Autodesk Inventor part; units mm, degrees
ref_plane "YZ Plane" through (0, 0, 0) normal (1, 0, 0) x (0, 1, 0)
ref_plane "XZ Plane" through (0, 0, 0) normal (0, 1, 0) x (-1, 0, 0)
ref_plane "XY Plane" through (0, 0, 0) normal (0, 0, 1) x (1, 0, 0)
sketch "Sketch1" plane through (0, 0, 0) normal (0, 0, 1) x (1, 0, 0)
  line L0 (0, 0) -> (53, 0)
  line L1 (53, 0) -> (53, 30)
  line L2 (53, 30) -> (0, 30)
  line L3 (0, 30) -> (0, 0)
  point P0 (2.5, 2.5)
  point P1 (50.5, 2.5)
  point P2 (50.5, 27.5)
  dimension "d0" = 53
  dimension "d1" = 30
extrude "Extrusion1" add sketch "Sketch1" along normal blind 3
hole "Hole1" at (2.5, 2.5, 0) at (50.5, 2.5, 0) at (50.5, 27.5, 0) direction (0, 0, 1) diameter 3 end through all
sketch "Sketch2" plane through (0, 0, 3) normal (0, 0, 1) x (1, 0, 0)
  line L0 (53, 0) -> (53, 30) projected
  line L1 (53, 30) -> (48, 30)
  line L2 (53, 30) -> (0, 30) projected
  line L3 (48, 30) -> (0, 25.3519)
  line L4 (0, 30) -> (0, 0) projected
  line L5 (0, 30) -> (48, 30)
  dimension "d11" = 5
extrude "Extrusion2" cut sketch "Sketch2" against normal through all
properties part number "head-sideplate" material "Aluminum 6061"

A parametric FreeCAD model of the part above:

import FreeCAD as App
import Part
import Sketcher
Q = App.Units.Quantity

doc = App.newDocument("Part")
body = doc.addObject("PartDesign::Body", "Body")

sketch1 = doc.addObject("Sketcher::SketchObject", "Sketch")
body.addObject(sketch1)
sketch1.AttachmentSupport = (doc.XY_Plane, [""])
sketch1.MapMode = "FlatFace"
sketch1.addGeometry([
    Part.LineSegment(App.Vector(0, 30, 0), App.Vector(0, 0, 0)),
    Part.LineSegment(App.Vector(0, 0, 0), App.Vector(53, 0, 0)),
    Part.LineSegment(App.Vector(53, 0, 0), App.Vector(53, 30, 0)),
    Part.LineSegment(App.Vector(53, 30, 0), App.Vector(0, 30, 0)),
], False)
sketch1.addConstraint([
    Sketcher.Constraint("Coincident", 0, 2, 1, 1),
    Sketcher.Constraint("Coincident", 1, 2, 2, 1),
    Sketcher.Constraint("Coincident", 2, 2, 3, 1),
    Sketcher.Constraint("Coincident", 3, 2, 0, 1),
    Sketcher.Constraint("Vertical", 0),
    Sketcher.Constraint("Horizontal", 1),
    Sketcher.Constraint("Vertical", 2),
    Sketcher.Constraint("Horizontal", 3),
    Sketcher.Constraint("Coincident", 0, 2, -1, 1),
    Sketcher.Constraint("DistanceX", 1, 1, 1, 2, 53.0),
    Sketcher.Constraint("DistanceY", 0, 2, 0, 1, 30.0),
])
pad1 = doc.addObject("PartDesign::Pad", "Pad")
body.addObject(pad1)
pad1.Profile = sketch1
pad1.Length = 3

sketch2 = doc.addObject("Sketcher::SketchObject", "Sketch001")
body.addObject(sketch2)
sketch2.AttachmentSupport = (doc.XY_Plane, [""])
sketch2.MapMode = "FlatFace"
sketch2.addGeometry([
    Part.Circle(App.Vector(2.5, 2.5, 0), App.Vector(0, 0, 1), 1.5),
    Part.Circle(App.Vector(50.5, 2.5, 0), App.Vector(0, 0, 1), 1.5),
    Part.Circle(App.Vector(50.5, 27.5, 0), App.Vector(0, 0, 1), 1.5),
], False)
sketch2.addConstraint([
    Sketcher.Constraint("Equal", 0, 1),
    Sketcher.Constraint("Equal", 1, 2),
    Sketcher.Constraint("Horizontal", 0, 3, 1, 3),
    Sketcher.Constraint("Vertical", 1, 3, 2, 3),
    Sketcher.Constraint("Diameter", 0, 3.0),
    Sketcher.Constraint("DistanceX", 0, 3, 1, 3, 48.0),
    Sketcher.Constraint("DistanceY", 1, 3, 2, 3, 25.0),
    Sketcher.Constraint("DistanceX", -1, 1, 0, 3, 2.5),
    Sketcher.Constraint("DistanceY", -1, 1, 0, 3, 2.5),
])
doc.recompute()
hole = doc.addObject("PartDesign::Hole", "Hole")
body.addObject(hole)
hole.Profile = sketch2
hole.ThreadType = "None"
hole.Diameter = 3
hole.DepthType = "ThroughAll"
hole.Reversed = True

sketch3 = doc.addObject("Sketcher::SketchObject", "Sketch002")
body.addObject(sketch3)
sketch3.AttachmentSupport = (doc.XY_Plane, [""])
sketch3.MapMode = "FlatFace"
sketch3.AttachmentOffset = App.Placement(App.Vector(0, 0, 3), App.Rotation())
sketch3.addGeometry([
    Part.LineSegment(App.Vector(0, 25.4, 0), App.Vector(48, 30, 0)),
    Part.LineSegment(App.Vector(48, 30, 0), App.Vector(0, 30, 0)),
    Part.LineSegment(App.Vector(0, 30, 0), App.Vector(0, 25.4, 0)),
], False)
sketch3.addConstraint([
    Sketcher.Constraint("Coincident", 0, 2, 1, 1),
    Sketcher.Constraint("Coincident", 1, 2, 2, 1),
    Sketcher.Constraint("Coincident", 2, 2, 0, 1),
    Sketcher.Constraint("Horizontal", 1),
    Sketcher.Constraint("Vertical", 2),
    Sketcher.Constraint("PointOnObject", 1, 2, -2),
    Sketcher.Constraint("DistanceX", 1, 2, 1, 1, 48.0),
    Sketcher.Constraint("DistanceY", -1, 1, 0, 2, 30.0),
    Sketcher.Constraint("Angle", 0, Q("5.531 deg")),
])
pocket1 = doc.addObject("PartDesign::Pocket", "Pocket")
body.addObject(pocket1)
pocket1.Profile = sketch3
pocket1.Type = "ThroughAll"

doc.recompute()
